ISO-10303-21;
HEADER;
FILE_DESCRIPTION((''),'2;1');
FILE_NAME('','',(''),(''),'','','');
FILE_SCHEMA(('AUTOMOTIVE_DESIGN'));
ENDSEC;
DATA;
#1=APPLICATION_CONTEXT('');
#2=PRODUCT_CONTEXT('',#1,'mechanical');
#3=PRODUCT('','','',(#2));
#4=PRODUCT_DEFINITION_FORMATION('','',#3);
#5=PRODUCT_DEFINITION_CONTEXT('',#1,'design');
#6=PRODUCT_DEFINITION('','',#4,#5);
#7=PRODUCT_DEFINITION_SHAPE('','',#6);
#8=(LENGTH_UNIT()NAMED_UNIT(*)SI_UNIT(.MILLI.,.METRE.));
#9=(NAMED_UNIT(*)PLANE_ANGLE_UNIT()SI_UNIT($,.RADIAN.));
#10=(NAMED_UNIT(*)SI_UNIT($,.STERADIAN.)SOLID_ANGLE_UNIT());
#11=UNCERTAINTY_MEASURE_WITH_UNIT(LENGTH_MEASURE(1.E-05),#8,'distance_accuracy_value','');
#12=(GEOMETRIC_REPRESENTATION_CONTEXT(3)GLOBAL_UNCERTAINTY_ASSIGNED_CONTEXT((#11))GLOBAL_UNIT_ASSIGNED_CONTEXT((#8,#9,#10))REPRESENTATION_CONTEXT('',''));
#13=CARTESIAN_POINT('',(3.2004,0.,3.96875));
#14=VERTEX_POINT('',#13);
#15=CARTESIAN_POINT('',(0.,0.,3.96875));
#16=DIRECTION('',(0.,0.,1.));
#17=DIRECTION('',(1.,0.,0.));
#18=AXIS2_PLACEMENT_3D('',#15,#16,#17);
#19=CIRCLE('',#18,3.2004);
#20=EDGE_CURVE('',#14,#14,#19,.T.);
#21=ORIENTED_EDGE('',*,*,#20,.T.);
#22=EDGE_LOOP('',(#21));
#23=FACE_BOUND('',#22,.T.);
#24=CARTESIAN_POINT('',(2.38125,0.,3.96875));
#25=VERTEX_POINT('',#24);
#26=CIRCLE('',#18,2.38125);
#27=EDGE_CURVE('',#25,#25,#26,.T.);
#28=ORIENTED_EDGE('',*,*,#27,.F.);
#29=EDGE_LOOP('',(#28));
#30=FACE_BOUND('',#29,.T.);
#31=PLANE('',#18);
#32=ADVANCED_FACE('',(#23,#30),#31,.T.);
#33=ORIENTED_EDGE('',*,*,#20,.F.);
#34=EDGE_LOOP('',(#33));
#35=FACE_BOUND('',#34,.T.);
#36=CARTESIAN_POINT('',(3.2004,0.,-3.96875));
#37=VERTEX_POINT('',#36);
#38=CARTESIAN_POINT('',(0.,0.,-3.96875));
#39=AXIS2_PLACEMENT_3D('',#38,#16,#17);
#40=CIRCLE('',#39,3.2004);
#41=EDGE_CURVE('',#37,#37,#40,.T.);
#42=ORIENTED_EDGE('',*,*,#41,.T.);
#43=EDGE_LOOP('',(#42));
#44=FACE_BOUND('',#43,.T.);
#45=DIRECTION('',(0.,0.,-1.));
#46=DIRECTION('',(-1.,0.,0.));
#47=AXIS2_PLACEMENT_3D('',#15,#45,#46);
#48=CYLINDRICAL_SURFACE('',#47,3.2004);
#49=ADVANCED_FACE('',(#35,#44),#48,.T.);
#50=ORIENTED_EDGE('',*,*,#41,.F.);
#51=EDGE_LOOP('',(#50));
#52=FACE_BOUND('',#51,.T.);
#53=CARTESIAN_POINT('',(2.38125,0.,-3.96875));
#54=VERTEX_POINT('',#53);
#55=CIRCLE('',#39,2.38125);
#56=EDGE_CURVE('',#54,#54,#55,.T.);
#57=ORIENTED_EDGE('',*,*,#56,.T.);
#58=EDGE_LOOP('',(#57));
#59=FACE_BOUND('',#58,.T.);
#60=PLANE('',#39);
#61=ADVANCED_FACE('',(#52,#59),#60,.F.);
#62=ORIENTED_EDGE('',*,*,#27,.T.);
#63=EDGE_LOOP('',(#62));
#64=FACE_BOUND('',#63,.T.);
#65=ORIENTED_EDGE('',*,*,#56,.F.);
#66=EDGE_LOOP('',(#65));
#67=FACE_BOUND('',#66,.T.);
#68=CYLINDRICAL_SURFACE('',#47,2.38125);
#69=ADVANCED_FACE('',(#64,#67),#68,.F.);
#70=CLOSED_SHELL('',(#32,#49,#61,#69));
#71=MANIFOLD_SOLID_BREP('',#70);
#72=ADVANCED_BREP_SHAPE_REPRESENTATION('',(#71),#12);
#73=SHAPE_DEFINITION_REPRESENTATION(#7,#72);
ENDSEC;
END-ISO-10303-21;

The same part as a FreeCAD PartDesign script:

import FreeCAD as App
import Part
import Sketcher
Q = App.Units.Quantity

doc = App.newDocument("Part")
body = doc.addObject("PartDesign::Body", "Body")

# Sketch on XY plane
sketch1 = doc.addObject("Sketcher::SketchObject", "Sketch")
body.addObject(sketch1)
sketch1.AttachmentSupport = (doc.XY_Plane, [""])
sketch1.MapMode = "FlatFace"
sketch1.addGeometry([
    Part.Circle(App.Vector(0, 0, 0), App.Vector(0, 0, 1), 3.2),
    Part.Circle(App.Vector(0, 0, 0), App.Vector(0, 0, 1), 2.4),
], False)
sketch1.addConstraint([
    Sketcher.Constraint("Coincident", 0, 3, -1, 1),
    Sketcher.Constraint("Coincident", 1, 3, -1, 1),
    Sketcher.Constraint("Diameter", 0, Q("0.252 in")),
    Sketcher.Constraint("Diameter", 1, Q("0.1875 in")),
])
pad1 = doc.addObject("PartDesign::Pad", "Pad")
body.addObject(pad1)
pad1.Profile = sketch1
pad1.Length = Q("0.3125 in")
pad1.Midplane = True

doc.recompute()
